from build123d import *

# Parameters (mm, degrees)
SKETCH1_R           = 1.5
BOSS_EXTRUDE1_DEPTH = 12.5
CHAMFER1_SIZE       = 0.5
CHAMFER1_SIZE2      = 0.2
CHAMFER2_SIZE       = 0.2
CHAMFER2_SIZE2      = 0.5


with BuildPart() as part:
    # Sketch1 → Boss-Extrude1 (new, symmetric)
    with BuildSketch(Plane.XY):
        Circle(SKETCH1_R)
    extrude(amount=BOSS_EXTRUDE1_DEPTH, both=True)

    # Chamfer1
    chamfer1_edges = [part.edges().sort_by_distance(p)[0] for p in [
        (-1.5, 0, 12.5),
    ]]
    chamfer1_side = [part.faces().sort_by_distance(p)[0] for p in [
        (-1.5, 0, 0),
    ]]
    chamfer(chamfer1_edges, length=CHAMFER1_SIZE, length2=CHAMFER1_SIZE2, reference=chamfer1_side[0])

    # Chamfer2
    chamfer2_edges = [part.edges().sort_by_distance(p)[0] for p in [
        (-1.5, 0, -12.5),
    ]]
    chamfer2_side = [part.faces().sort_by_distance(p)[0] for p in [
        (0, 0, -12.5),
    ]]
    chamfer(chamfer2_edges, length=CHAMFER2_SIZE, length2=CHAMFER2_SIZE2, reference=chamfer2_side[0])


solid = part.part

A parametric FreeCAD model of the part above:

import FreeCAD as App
import Part
import Sketcher

V = App.Vector


def edges_at(feature, points):
    """Names of the edges that pass closest to the given points."""
    edges = feature.Shape.Edges
    near = lambda p: min(range(len(edges)), key=lambda i: edges[i].distToShape(Part.Vertex(*p))[0])
    return sorted({f"Edge{near(p) + 1}" for p in points})

doc = App.newDocument("Part")
params = doc.addObject("Spreadsheet::Sheet", "Params")
for row, (alias, value) in enumerate([
    ("sketch1_diameter", "3 mm"),
    ("pad1_length", "25 mm"),
    ("chamfer_size", "0.5 mm"),
    ("chamfer_size2", "0.2 mm"),
    ("chamfer2_size", "0.2 mm"),
    ("chamfer2_size2", "0.5 mm"),
], start=1):
    params.set(f"A{row}", alias)
    params.set(f"B{row}", "=" + value)
    params.setAlias(f"B{row}", alias)

body = doc.addObject("PartDesign::Body", "Body")

sketch1 = doc.addObject("Sketcher::SketchObject", "Sketch")
body.addObject(sketch1)
sketch1.AttachmentSupport = (doc.XY_Plane, [""])
sketch1.MapMode = "FlatFace"
sketch1.addGeometry(Part.Circle(V(0, 0, 0), V(0, 0, 1), 1.5), False)
sketch1.addConstraint([
    Sketcher.Constraint("Coincident", 0, 3, -1, 1),
    Sketcher.Constraint("Diameter", 0, 3.0),
])
sketch1.setExpression("Constraints[1]", "Params.sketch1_diameter")
pad1 = doc.addObject("PartDesign::Pad", "Pad")
body.addObject(pad1)
pad1.Profile = sketch1
pad1.setExpression("Length", "Params.pad1_length")
pad1.Midplane = True
doc.recompute()

chamfer = doc.addObject("PartDesign::Chamfer", "Chamfer")
body.addObject(chamfer)
chamfer.Base = (pad1, edges_at(pad1, [(-1.5, 0, 12.5)]))
chamfer.ChamferType = "Two distances"
chamfer.setExpression("Size", "Params.chamfer_size")
chamfer.setExpression("Size2", "Params.chamfer_size2")
doc.recompute()

chamfer2 = doc.addObject("PartDesign::Chamfer", "Chamfer001")
body.addObject(chamfer2)
chamfer2.Base = (chamfer, edges_at(chamfer, [(-1.5, 0, -12.5)]))
chamfer2.ChamferType = "Two distances"
chamfer2.setExpression("Size", "Params.chamfer2_size")
chamfer2.setExpression("Size2", "Params.chamfer2_size2")
chamfer2.FlipDirection = True

doc.recompute()
